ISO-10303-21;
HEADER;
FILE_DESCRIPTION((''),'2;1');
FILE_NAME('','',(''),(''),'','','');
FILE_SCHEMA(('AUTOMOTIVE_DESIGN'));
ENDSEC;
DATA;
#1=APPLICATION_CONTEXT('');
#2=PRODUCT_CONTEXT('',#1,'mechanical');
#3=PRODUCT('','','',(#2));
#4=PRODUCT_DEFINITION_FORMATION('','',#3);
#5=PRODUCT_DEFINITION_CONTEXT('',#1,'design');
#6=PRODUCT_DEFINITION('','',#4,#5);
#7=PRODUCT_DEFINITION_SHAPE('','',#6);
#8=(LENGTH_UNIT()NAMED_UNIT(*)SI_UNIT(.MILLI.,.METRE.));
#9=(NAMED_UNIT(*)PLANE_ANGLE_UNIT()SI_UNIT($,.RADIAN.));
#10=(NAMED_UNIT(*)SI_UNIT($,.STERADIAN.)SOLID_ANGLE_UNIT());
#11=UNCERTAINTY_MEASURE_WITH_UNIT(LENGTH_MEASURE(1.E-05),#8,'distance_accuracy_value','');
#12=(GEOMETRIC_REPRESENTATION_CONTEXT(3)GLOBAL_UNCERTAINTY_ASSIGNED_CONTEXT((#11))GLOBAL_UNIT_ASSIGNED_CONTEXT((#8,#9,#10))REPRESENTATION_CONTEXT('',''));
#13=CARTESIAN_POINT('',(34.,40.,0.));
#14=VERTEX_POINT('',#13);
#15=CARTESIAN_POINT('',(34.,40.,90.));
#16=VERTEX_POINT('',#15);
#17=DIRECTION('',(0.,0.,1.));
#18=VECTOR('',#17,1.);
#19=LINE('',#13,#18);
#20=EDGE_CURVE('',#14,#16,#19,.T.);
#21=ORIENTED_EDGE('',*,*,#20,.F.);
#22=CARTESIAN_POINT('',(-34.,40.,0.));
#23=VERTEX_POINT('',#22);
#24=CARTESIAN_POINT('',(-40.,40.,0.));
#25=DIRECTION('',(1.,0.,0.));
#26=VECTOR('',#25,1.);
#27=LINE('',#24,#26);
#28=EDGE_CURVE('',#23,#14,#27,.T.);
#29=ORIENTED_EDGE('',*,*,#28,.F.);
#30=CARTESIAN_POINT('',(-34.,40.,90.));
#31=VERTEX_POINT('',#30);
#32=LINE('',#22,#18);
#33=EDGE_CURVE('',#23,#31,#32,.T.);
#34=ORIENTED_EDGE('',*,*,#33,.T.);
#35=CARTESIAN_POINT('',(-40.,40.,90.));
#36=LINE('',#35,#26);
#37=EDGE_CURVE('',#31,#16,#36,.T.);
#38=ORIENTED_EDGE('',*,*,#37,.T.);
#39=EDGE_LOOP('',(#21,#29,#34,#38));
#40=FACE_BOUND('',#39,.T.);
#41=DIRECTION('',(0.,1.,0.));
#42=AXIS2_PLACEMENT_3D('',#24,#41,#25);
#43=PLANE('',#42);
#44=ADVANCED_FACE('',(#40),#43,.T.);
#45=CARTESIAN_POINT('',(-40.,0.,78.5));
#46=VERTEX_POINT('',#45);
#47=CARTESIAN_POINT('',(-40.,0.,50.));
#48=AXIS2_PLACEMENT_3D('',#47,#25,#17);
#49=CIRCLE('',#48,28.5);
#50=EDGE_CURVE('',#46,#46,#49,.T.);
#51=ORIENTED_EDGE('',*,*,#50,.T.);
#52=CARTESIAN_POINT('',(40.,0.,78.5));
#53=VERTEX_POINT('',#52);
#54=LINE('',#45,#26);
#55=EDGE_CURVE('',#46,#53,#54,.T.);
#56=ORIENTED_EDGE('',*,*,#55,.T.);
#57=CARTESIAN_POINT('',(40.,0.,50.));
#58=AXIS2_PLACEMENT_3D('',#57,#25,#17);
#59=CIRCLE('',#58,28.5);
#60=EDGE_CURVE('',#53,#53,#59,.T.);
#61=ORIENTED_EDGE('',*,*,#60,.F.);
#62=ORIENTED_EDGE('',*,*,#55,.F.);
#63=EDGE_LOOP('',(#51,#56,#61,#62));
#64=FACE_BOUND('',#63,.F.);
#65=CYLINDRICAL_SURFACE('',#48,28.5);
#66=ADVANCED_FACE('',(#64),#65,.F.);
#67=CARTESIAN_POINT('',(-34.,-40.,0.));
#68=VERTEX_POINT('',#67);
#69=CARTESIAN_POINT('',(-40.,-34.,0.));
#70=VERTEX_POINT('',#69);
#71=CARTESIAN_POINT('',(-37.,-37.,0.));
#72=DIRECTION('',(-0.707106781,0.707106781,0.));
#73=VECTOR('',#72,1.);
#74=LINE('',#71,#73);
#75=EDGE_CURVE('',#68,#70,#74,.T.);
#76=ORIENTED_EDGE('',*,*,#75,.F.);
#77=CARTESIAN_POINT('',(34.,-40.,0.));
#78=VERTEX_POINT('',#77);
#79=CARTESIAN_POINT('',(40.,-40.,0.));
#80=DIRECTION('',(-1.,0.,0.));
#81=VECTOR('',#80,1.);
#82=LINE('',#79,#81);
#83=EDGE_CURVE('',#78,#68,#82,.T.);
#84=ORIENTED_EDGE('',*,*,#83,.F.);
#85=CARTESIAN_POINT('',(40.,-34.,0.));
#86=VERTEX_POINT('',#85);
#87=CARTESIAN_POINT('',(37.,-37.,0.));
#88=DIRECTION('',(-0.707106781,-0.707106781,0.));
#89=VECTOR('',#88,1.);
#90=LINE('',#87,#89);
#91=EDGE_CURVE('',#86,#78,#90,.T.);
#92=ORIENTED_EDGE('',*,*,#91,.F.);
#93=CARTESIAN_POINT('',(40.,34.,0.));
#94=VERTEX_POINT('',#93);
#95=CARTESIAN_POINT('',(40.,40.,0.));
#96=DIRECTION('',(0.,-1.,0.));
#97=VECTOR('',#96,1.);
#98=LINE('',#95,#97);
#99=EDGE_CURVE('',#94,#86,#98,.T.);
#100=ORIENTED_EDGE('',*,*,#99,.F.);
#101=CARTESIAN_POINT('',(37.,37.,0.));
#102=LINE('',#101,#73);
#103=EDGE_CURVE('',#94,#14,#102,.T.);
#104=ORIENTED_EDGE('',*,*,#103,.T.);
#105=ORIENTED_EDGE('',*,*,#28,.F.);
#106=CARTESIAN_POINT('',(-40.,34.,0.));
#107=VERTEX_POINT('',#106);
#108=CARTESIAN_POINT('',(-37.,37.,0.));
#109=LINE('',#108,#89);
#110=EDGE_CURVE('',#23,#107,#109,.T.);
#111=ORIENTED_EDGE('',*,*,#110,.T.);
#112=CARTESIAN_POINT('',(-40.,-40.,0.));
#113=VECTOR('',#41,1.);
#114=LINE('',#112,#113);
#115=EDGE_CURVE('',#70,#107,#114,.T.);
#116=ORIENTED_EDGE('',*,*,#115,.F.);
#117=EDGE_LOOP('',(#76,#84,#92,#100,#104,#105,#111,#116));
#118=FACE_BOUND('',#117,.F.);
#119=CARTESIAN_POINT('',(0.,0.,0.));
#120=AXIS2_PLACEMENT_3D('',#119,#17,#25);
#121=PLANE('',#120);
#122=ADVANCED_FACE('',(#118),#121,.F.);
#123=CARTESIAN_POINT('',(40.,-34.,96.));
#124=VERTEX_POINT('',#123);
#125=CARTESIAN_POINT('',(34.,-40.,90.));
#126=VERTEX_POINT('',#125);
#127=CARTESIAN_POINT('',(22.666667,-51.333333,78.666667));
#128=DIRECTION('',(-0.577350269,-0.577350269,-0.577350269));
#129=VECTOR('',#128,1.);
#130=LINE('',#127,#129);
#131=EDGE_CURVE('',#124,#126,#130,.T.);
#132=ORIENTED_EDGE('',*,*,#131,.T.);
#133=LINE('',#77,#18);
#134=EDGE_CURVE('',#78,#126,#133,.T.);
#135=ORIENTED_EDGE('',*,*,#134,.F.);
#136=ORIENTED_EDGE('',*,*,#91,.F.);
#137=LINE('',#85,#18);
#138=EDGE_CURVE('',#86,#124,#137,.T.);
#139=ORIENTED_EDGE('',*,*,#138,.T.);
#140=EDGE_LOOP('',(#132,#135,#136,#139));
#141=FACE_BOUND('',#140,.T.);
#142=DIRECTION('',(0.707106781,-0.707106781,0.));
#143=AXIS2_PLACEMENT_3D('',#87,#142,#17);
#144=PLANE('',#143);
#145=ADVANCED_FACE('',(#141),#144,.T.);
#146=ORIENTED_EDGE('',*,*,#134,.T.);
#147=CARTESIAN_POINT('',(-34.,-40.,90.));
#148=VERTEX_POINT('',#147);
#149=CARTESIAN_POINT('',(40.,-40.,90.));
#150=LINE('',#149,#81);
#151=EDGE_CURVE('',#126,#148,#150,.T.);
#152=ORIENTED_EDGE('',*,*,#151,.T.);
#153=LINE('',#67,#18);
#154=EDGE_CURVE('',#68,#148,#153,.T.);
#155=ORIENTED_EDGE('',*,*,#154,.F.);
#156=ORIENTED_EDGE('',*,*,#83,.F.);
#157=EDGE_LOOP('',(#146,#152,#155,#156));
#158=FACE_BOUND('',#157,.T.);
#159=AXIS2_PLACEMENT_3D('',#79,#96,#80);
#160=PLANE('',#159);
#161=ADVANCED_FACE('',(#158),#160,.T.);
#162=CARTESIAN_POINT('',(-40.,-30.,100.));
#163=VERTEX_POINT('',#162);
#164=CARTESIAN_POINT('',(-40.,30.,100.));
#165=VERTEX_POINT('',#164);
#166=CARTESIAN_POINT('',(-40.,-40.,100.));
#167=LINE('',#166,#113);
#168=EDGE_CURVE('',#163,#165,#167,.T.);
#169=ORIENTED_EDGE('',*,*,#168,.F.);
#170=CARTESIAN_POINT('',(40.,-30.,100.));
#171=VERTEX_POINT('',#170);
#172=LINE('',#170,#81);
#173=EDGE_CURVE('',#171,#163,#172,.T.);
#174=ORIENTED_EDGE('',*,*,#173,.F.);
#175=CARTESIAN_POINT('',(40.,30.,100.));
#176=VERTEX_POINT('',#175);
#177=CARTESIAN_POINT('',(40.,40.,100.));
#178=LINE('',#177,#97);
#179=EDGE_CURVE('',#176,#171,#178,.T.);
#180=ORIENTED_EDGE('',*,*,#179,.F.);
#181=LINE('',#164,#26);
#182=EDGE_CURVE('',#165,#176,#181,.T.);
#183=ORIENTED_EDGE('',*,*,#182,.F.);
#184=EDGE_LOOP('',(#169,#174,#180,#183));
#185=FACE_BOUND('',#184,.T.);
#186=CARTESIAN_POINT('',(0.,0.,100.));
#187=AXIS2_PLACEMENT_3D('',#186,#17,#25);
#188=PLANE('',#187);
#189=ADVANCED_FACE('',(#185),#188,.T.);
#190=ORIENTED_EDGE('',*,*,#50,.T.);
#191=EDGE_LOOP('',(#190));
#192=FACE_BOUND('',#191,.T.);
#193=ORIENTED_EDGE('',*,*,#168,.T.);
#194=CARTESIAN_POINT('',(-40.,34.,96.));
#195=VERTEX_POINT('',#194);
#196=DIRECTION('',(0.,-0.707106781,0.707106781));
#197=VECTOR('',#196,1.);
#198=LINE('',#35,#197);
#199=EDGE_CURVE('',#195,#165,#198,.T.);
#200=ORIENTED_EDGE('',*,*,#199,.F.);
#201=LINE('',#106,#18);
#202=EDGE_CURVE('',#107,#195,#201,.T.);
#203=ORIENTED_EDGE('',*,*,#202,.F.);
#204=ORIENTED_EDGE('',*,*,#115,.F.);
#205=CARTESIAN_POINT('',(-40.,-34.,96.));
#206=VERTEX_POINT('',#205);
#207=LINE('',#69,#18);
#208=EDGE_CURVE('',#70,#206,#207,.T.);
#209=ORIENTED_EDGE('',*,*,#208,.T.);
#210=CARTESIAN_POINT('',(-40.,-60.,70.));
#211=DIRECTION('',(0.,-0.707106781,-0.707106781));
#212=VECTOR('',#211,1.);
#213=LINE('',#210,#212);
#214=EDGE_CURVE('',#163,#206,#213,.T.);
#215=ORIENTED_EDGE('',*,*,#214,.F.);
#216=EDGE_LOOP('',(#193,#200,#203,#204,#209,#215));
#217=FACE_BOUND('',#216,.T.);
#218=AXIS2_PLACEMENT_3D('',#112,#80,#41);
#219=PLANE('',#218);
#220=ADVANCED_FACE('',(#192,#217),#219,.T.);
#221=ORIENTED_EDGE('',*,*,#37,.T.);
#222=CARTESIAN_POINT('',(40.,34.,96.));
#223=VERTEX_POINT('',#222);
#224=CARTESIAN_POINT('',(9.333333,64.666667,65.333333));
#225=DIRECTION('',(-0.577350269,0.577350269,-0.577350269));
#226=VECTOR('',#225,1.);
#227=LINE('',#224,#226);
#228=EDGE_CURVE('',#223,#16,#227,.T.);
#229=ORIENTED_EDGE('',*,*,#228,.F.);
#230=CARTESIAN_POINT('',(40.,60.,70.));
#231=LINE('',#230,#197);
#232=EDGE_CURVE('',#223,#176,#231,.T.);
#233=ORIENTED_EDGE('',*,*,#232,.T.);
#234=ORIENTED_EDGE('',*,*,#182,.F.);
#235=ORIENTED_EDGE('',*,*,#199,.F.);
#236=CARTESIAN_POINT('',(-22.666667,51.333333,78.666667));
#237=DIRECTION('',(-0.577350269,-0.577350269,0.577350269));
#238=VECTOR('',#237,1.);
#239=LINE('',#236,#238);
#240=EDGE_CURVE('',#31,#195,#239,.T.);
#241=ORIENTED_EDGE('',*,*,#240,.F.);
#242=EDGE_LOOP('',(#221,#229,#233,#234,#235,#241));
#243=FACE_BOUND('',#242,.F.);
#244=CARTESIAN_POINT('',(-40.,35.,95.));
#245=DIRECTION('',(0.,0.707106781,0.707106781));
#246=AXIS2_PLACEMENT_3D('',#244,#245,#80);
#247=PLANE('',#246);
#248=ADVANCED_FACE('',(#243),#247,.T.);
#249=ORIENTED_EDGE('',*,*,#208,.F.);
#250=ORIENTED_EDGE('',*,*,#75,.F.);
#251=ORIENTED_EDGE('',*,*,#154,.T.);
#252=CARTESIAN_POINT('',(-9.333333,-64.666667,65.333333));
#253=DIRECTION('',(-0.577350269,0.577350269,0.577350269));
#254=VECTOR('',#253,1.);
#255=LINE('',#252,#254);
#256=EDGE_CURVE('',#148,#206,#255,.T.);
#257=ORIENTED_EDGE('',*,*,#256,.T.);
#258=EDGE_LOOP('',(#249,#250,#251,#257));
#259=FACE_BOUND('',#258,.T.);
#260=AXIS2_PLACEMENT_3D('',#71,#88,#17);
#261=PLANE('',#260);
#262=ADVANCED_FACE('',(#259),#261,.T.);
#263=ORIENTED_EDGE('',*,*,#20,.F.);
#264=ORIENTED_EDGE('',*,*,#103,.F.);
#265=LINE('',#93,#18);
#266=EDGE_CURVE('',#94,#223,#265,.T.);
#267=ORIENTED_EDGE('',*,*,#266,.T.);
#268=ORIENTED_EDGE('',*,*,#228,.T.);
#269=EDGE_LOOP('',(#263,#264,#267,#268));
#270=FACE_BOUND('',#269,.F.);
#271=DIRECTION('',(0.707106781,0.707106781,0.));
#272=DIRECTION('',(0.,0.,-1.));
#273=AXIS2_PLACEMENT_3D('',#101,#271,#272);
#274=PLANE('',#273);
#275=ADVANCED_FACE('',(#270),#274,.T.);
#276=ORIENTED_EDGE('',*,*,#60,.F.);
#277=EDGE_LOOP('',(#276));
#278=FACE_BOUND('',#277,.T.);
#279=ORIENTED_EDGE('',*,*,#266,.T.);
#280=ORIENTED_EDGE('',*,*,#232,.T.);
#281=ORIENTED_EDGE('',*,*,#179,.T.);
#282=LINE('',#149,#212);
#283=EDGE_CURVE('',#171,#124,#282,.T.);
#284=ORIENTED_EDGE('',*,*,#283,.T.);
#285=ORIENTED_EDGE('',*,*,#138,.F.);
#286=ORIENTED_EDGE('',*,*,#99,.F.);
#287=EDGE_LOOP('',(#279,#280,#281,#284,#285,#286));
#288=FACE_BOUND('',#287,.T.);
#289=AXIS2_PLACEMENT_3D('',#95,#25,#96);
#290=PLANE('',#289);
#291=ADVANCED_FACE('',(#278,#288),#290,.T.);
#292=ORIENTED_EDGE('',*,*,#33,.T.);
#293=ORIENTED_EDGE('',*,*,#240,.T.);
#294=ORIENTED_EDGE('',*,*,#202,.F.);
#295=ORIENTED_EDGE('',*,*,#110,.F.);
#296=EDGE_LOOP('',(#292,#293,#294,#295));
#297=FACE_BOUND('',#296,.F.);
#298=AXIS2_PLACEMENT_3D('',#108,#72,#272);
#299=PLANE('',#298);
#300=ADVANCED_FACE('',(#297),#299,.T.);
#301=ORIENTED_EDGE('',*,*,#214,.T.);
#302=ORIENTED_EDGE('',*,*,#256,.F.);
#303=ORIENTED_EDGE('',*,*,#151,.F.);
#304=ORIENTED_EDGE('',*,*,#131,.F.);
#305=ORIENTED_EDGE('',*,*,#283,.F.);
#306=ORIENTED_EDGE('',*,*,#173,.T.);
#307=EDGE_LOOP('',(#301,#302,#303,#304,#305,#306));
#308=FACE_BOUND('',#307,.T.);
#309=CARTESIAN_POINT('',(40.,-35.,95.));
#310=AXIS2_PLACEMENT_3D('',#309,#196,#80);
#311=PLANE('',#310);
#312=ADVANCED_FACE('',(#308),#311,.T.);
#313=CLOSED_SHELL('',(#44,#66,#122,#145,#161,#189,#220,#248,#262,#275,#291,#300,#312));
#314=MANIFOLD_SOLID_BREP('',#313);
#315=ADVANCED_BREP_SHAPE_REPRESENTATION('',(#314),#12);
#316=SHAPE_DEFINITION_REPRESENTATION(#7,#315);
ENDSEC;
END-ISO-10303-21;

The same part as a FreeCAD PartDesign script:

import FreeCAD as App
import Part
import Sketcher
Q = App.Units.Quantity


def edges_at(feature, points):
    """Names of the edges that pass closest to the given points."""
    edges = feature.Shape.Edges
    near = lambda p: min(range(len(edges)), key=lambda i: edges[i].distToShape(Part.Vertex(*p))[0])
    return sorted({f"Edge{near(p) + 1}" for p in points})


def add_polygon(sketch, points):
    """Adds a closed chain of lines whose ends are joined by coincident constraints."""
    first, n = sketch.GeometryCount, len(points)
    for a, b in zip(points, points[1:] + points[:1]):
        sketch.addGeometry(Part.LineSegment(App.Vector(*a, 0), App.Vector(*b, 0)), False)
    for i in range(n):
        sketch.addConstraint(Sketcher.Constraint("Coincident", first + i, 2, first + (i + 1) % n, 1))

doc = App.newDocument("Part")
body = doc.addObject("PartDesign::Body", "Body")

# Sketch on XY plane
sketch1 = body.newObject("Sketcher::SketchObject", "Sketch")
sketch1.AttachmentSupport = (doc.getObject("XY_Plane"), [""])
sketch1.MapMode = "FlatFace"
add_polygon(sketch1, [(40, -40), (40, 40), (-40, 40), (-40, -40)])  # lines 0-3
sketch1.addConstraint(Sketcher.Constraint("Vertical", 0))
sketch1.addConstraint(Sketcher.Constraint("Horizontal", 1))
sketch1.addConstraint(Sketcher.Constraint("Vertical", 2))
sketch1.addConstraint(Sketcher.Constraint("Horizontal", 3))
sketch1.addConstraint(Sketcher.Constraint("Symmetric", 0, 2, 2, 2, -1, 1))
sketch1.addConstraint(Sketcher.Constraint("Equal", 3, 0))
sketch1.addConstraint(Sketcher.Constraint("DistanceX", 1, 2, 1, 1, Q("80 mm")))
pad1 = body.newObject("PartDesign::Pad", "Pad")
pad1.Profile = sketch1
pad1.Length = 100

# Sketch on YZ plane
sketch2 = body.newObject("Sketcher::SketchObject", "Sketch001")
sketch2.AttachmentSupport = (doc.getObject("YZ_Plane"), [""])
sketch2.MapMode = "FlatFace"
sketch2.AttachmentOffset = App.Placement(App.Vector(0, 0, -40), App.Rotation())
sketch2.addGeometry(Part.Circle(App.Vector(0, 50, 0), App.Vector(0, 0, 1), 28), False)
sketch2.addConstraint(Sketcher.Constraint("PointOnObject", 0, 3, -2))
sketch2.addConstraint(Sketcher.Constraint("Diameter", 0, Q("57 mm")))
sketch2.addConstraint(Sketcher.Constraint("DistanceY", -1, 1, 0, 3, Q("50 mm")))
doc.recompute()
hole = body.newObject("PartDesign::Hole", "Hole")
hole.Profile = sketch2
hole.ThreadType = "None"
hole.Diameter = 57
hole.DepthType = "ThroughAll"
hole.Reversed = True
doc.recompute()

chamfer = body.newObject("PartDesign::Chamfer", "Chamfer")
chamfer.Base = (hole, edges_at(hole, [(0, -40, 100), (0, 40, 100)]))
chamfer.Size = 10
doc.recompute()

chamfer2 = body.newObject("PartDesign::Chamfer", "Chamfer001")
chamfer2.Base = (chamfer, edges_at(chamfer, [
    (-40, 40, 45),
    (40, 40, 45),
    (-40, -40, 45),
    (40, -40, 45),
]))
chamfer2.Size = 6

doc.recompute()
